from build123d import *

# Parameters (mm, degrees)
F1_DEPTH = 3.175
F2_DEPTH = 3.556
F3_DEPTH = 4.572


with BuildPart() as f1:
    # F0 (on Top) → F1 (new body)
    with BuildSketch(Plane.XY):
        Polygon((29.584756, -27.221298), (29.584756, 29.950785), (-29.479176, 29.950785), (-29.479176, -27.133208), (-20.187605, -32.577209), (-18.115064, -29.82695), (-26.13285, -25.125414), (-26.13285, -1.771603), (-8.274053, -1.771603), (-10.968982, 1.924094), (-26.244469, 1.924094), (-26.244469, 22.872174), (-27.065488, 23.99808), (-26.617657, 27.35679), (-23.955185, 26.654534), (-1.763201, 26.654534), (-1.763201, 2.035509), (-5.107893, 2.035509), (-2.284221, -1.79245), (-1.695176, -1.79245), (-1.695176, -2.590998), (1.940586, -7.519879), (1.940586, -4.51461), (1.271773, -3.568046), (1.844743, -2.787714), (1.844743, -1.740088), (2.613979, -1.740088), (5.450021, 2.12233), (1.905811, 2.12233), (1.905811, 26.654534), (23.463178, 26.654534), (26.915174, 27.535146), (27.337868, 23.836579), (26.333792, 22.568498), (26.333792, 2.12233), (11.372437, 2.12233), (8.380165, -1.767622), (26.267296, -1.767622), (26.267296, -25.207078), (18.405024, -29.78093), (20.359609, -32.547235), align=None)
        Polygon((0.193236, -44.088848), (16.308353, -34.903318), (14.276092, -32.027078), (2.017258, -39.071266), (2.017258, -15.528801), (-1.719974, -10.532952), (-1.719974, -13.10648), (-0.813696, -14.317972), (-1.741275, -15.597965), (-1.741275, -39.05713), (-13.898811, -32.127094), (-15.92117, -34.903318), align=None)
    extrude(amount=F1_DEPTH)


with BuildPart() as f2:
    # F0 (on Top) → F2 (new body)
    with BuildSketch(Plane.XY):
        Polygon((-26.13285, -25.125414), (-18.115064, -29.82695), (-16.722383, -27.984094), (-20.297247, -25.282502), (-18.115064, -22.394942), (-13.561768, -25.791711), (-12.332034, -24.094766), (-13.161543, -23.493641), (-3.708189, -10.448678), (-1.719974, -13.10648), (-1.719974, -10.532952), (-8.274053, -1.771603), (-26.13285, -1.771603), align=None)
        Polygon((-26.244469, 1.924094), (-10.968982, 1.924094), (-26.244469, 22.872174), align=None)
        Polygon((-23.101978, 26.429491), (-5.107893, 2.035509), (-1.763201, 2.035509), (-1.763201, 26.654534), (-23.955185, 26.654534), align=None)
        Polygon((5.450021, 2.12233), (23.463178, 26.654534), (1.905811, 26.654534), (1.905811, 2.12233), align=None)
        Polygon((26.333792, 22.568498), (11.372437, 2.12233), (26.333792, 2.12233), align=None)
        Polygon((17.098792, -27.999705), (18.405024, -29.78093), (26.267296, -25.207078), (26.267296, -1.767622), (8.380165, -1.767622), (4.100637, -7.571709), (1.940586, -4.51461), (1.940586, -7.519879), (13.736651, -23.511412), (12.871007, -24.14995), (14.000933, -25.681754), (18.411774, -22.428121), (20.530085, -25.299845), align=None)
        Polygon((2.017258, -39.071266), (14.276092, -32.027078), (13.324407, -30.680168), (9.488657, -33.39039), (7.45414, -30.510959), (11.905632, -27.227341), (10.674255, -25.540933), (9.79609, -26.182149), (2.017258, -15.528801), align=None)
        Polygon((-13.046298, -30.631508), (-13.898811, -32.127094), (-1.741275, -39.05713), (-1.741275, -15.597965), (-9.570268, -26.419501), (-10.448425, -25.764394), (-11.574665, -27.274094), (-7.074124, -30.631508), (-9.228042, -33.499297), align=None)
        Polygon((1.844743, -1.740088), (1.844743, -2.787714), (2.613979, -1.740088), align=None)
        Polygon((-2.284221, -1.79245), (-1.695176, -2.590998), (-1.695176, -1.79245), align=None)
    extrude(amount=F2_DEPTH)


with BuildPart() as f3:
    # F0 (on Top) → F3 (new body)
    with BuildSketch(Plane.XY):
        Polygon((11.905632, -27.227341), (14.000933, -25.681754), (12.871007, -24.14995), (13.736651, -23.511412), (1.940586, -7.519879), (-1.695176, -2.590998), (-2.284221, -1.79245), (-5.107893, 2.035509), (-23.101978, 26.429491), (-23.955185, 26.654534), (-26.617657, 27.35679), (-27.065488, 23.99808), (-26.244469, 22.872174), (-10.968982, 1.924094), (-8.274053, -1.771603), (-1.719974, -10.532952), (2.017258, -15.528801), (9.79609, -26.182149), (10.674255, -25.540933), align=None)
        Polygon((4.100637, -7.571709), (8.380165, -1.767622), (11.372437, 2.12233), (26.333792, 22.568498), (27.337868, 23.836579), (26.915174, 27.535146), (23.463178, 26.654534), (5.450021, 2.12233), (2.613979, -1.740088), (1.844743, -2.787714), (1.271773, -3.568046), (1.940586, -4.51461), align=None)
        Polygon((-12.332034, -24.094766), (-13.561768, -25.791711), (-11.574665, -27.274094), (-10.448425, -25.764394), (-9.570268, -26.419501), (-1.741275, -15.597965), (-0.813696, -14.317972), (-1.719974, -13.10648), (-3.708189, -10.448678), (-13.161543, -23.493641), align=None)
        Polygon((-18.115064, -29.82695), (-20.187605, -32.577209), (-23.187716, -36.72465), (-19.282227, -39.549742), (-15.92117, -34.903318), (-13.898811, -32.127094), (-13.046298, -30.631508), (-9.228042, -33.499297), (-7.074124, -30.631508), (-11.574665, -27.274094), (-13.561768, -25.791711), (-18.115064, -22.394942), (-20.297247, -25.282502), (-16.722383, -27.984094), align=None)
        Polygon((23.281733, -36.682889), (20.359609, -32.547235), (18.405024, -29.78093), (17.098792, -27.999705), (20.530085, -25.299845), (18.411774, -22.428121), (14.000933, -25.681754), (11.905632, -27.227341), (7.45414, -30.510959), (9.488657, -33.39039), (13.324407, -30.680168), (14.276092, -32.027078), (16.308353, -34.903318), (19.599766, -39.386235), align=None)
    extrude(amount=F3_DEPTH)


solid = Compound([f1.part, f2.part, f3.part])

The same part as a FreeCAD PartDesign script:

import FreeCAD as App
import Part
import Sketcher

V = App.Vector
Q = App.Units.Quantity


def add_polygon(sketch, points):
    """Adds a closed chain of lines whose ends are joined by coincident constraints."""
    first, n = sketch.GeometryCount, len(points)
    for a, b in zip(points, points[1:] + points[:1]):
        sketch.addGeometry(Part.LineSegment(App.Vector(*a, 0), App.Vector(*b, 0)), False)
    for i in range(n):
        sketch.addConstraint(Sketcher.Constraint("Coincident", first + i, 2, first + (i + 1) % n, 1))

doc = App.newDocument("Part")
params = doc.addObject("Spreadsheet::Sheet", "Params")
for row, (alias, value) in enumerate([
    ("pad1_length", "0.125 in"),
    ("pad2_length", "0.14 in"),
    ("pad3_length", "0.18 in"),
], start=1):
    params.set(f"A{row}", alias)
    params.set(f"B{row}", "=" + value)
    params.setAlias(f"B{row}", alias)

body = doc.addObject("PartDesign::Body", "Body")
body.AllowCompound = True

sketch1 = doc.addObject("Sketcher::SketchObject", "Sketch")
body.addObject(sketch1)
sketch1.AttachmentSupport = (doc.XY_Plane, [""])
sketch1.MapMode = "FlatFace"
add_polygon(sketch1, [(29.6, -27.2), (29.6, 30), (-29.5, 30), (-29.5, -27.1), (-20.2, -32.6), (-18.1, -29.8), (-26.1, -25.1), (-26.1, -1.8), (-8.3, -1.8), (-11, 1.9), (-26.2, 1.9), (-26.2, 22.9), (-27.1, 24), (-26.6, 27.4), (-24, 26.7), (-1.8, 26.7), (-1.8, 2), (-5.1, 2), (-2.3, -1.8), (-1.7, -1.8), (-1.7, -2.6), (1.9, -7.5), (1.9, -4.5), (1.3, -3.6), (1.8, -2.8), (1.8, -1.7), (2.6, -1.7), (5.5, 2.1), (1.9, 2.1), (1.9, 26.7), (23.5, 26.7), (26.9, 27.5), (27.3, 23.8), (26.3, 22.6), (26.3, 2.1), (11.4, 2.1), (8.4, -1.8), (26.3, -1.8), (26.3, -25.2), (18.4, -29.8), (20.4, -32.5)])
add_polygon(sketch1, [(0.2, -44.1), (16.3, -34.9), (14.3, -32), (2, -39.1), (2, -15.5), (-1.7, -10.5), (-1.7, -13.1), (-0.8, -14.3), (-1.7, -15.6), (-1.7, -39.1), (-13.9, -32.1), (-15.9, -34.9)])
sketch1.addConstraint([
    Sketcher.Constraint("Vertical", 0),
    Sketcher.Constraint("Horizontal", 1),
    Sketcher.Constraint("Vertical", 2),
    Sketcher.Constraint("Vertical", 6),
    Sketcher.Constraint("Horizontal", 7),
    Sketcher.Constraint("Horizontal", 9),
    Sketcher.Constraint("Vertical", 10),
    Sketcher.Constraint("Horizontal", 14),
    Sketcher.Constraint("Vertical", 15),
    Sketcher.Constraint("Horizontal", 16),
    Sketcher.Constraint("Horizontal", 18),
    Sketcher.Constraint("Vertical", 19),
    Sketcher.Constraint("Vertical", 21),
    Sketcher.Constraint("Vertical", 24),
    Sketcher.Constraint("Horizontal", 25),
    Sketcher.Constraint("Horizontal", 27),
    Sketcher.Constraint("Vertical", 28),
    Sketcher.Constraint("Horizontal", 29),
    Sketcher.Constraint("Vertical", 33),
    Sketcher.Constraint("Horizontal", 34),
    Sketcher.Constraint("Horizontal", 36),
    Sketcher.Constraint("Vertical", 37),
    Sketcher.Constraint("Vertical", 44),
    Sketcher.Constraint("Vertical", 46),
    Sketcher.Constraint("Vertical", 49),
    Sketcher.Constraint("Parallel", 8, 11),
    Sketcher.Constraint("Parallel", 17, 20),
    Sketcher.Constraint("Parallel", 23, 26),
    Sketcher.Constraint("Parallel", 22, 39),
    Sketcher.Constraint("Parallel", 39, 42),
    Sketcher.Constraint("Parallel", 45, 47),
    Sketcher.Constraint("Parallel", 50, 52),
    Sketcher.Constraint("Horizontal", 14, 2, 28, 2),
    Sketcher.Constraint("Horizontal", 27, 2, 33, 2),
    Sketcher.Constraint("Horizontal", 41, 2, 51, 2),
    Sketcher.Constraint("DistanceX", 14, 1, 14, 2, Q("0.8737002 in")),
    Sketcher.Constraint("DistanceY", 4, 2, 5, 2, Q("0.1850998 in")),
    Sketcher.Constraint("DistanceY", 7, 2, 8, 2, Q("0.1454999 in")),
    Sketcher.Constraint("DistanceX", 24, 2, 35, 2, Q("0.2573001 in")),
    Sketcher.Constraint("DistanceY", 40, 2, 37, 2, Q("0.0793 in")),
    Sketcher.Constraint("DistanceX", 2, 2, 50, 2, Q("0.6134002 in")),
    Sketcher.Constraint("DistanceY", 51, 2, 50, 2, Q("0.1093002 in")),
    Sketcher.Constraint("DistanceX", 1, 2, 1, 1, Q("59.063932 mm")),
    Sketcher.Constraint("DistanceX", 16, 2, 16, 1, Q("3.344692 mm")),
    Sketcher.Constraint("DistanceX", 27, 2, 27, 1, Q("3.54421 mm")),
    Sketcher.Constraint("DistanceX", 36, 1, 36, 2, Q("17.887131 mm")),
    Sketcher.Constraint("DistanceY", 6, 1, 6, 2, Q("23.353811 mm")),
    Sketcher.Constraint("DistanceY", 10, 1, 10, 2, Q("20.94808 mm")),
    Sketcher.Constraint("DistanceY", 21, 1, 21, 2, Q("3.005269 mm")),
    Sketcher.Constraint("DistanceY", 33, 2, 33, 1, Q("20.446168 mm")),
    Sketcher.Constraint("DistanceX", 14, 2, -1, 1, Q("1.763201 mm")),
    Sketcher.Constraint("DistanceY", -1, 1, 32, 2, Q("22.568498 mm")),
    Sketcher.Constraint("DistanceY", 40, 2, -1, 1, Q("27.221298 mm")),
    Sketcher.Constraint("DistanceY", 44, 2, -1, 1, Q("15.528801 mm")),
    Sketcher.Constraint("DistanceY", 3, 2, 2, 2, Q("5.444001 mm")),
    Sketcher.Constraint("DistanceY", 5, 2, 1, 2, Q("55.076199 mm")),
    Sketcher.Constraint("DistanceY", 37, 2, 20, 2, Q("17.687199 mm")),
    Sketcher.Constraint("DistanceY", 42, 2, 37, 2, Q("6.82 mm")),
    Sketcher.Constraint("DistanceY", 46, 2, 20, 2, Q("5.586601 mm")),
    Sketcher.Constraint("DistanceX", 48, 2, 46, 2, Q("0.021301 mm")),
    Sketcher.Constraint("Distance", 4, Q("3.443741 mm")),
    Sketcher.Constraint("Distance", 8, Q("4.573928 mm")),
    Sketcher.Constraint("Distance", 13, Q("2.753529 mm")),
    Sketcher.Constraint("Distance", 17, Q("4.756721 mm")),
    Sketcher.Constraint("Distance", 30, Q("3.562549 mm")),
    Sketcher.Constraint("Distance", 35, Q("4.90769 mm")),
    Sketcher.Constraint("Distance", 39, Q("3.387159 mm")),
    Sketcher.Constraint("Distance", 40, Q("10.65218 mm")),
    Sketcher.Constraint("Distance", 41, Q("18.54915 mm")),
    Sketcher.Constraint("Distance", 47, Q("1.512962 mm")),
    Sketcher.Constraint("DistanceX", 7, 1, 7, 2, Q("17.858797 mm")),
    Sketcher.Constraint("DistanceX", 9, 2, 9, 1, Q("15.275487 mm")),
    Sketcher.Constraint("DistanceX", 18, 1, 18, 2, Q("0.589045 mm")),
    Sketcher.Constraint("DistanceX", 25, 1, 25, 2, Q("0.769236 mm")),
    Sketcher.Constraint("DistanceX", 29, 1, 29, 2, Q("21.557367 mm")),
    Sketcher.Constraint("DistanceX", 34, 2, 34, 1, Q("14.961355 mm")),
    Sketcher.Constraint("DistanceY", 0, 1, 0, 2, Q("57.172083 mm")),
    Sketcher.Constraint("DistanceY", 2, 2, 2, 1, Q("57.083993 mm")),
    Sketcher.Constraint("DistanceY", 15, 2, 15, 1, Q("24.619025 mm")),
    Sketcher.Constraint("DistanceY", 19, 2, 19, 1, Q("0.798548 mm")),
    Sketcher.Constraint("DistanceY", 24, 1, 24, 2, Q("1.047626 mm")),
    Sketcher.Constraint("DistanceY", 28, 1, 28, 2, Q("24.532204 mm")),
    Sketcher.Constraint("DistanceY", 37, 2, 37, 1, Q("23.439456 mm")),
    Sketcher.Constraint("DistanceY", 44, 1, 44, 2, Q("23.542465 mm")),
    Sketcher.Constraint("DistanceY", 46, 2, 46, 1, Q("2.573528 mm")),
    Sketcher.Constraint("DistanceY", 49, 2, 49, 1, Q("23.459165 mm")),
    Sketcher.Constraint("DistanceX", 5, 2, -1, 1, Q("26.13285 mm")),
    Sketcher.Constraint("DistanceY", -1, 1, 11, 2, Q("23.99808 mm")),
    Sketcher.Constraint("DistanceY", -1, 1, 12, 2, Q("27.35679 mm")),
    Sketcher.Constraint("DistanceX", 17, 2, -1, 1, Q("2.284221 mm")),
    Sketcher.Constraint("DistanceY", 24, 2, -1, 1, Q("1.740088 mm")),
    Sketcher.Constraint("DistanceX", -1, 1, 25, 2, Q("2.613979 mm")),
    Sketcher.Constraint("DistanceX", -1, 1, 26, 2, Q("5.450021 mm")),
    Sketcher.Constraint("DistanceX", -1, 1, 31, 2, Q("27.337868 mm")),
    Sketcher.Constraint("DistanceY", -1, 1, 31, 2, Q("23.836579 mm")),
    Sketcher.Constraint("DistanceY", 38, 2, -1, 1, Q("29.78093 mm")),
    Sketcher.Constraint("DistanceX", -1, 1, 39, 2, Q("20.359609 mm")),
    Sketcher.Constraint("DistanceX", -1, 1, 43, 2, Q("2.017258 mm")),
    Sketcher.Constraint("DistanceY", 47, 2, -1, 1, Q("14.317972 mm")),
    Sketcher.Constraint("DistanceY", 49, 2, -1, 1, Q("39.05713 mm")),
    Sketcher.Constraint("DistanceX", 50, 2, -1, 1, Q("13.898811 mm")),
    Sketcher.Constraint("DistanceX", 51, 2, -1, 1, Q("15.92117 mm")),
    Sketcher.Constraint("DistanceX", 2, 2, 3, 2, Q("9.291571 mm")),
    Sketcher.Constraint("DistanceY", 29, 2, 30, 2, Q("0.880612 mm")),
    Sketcher.Constraint("DistanceX", 41, 2, 38, 2, Q("2.096671 mm")),
    Sketcher.Constraint("DistanceY", 41, 2, 37, 2, Q("9.69624 mm")),
])
pad1 = doc.addObject("PartDesign::Pad", "Pad")
body.addObject(pad1)
pad1.Profile = sketch1
pad1.setExpression("Length", "Params.pad1_length")
body2 = doc.addObject("PartDesign::Body", "Body001")
body2.AllowCompound = True

sketch2 = doc.addObject("Sketcher::SketchObject", "Sketch001")
body2.addObject(sketch2)
sketch2.AttachmentSupport = (doc.getObject("XY_Plane001"), [""])
sketch2.MapMode = "FlatFace"
add_polygon(sketch2, [(-26.13285, -25.125414), (-18.115064, -29.82695), (-16.722383, -27.984094), (-20.297247, -25.282502), (-18.115064, -22.394942), (-13.561768, -25.791711), (-12.332034, -24.094766), (-13.161543, -23.493641), (-3.708189, -10.448678), (-1.719974, -13.10648), (-1.719974, -10.532952), (-8.274053, -1.771603), (-26.13285, -1.771603)])
add_polygon(sketch2, [(-26.244469, 1.924094), (-10.968982, 1.924094), (-26.244469, 22.872174)])
add_polygon(sketch2, [(-23.101978, 26.429491), (-5.107893, 2.035509), (-1.763201, 2.035509), (-1.763201, 26.654534), (-23.955185, 26.654534)])
add_polygon(sketch2, [(5.450021, 2.12233), (23.463178, 26.654534), (1.905811, 26.654534), (1.905811, 2.12233)])
add_polygon(sketch2, [(26.333792, 22.568498), (11.372437, 2.12233), (26.333792, 2.12233)])
add_polygon(sketch2, [(17.098792, -27.999705), (18.405024, -29.78093), (26.267296, -25.207078), (26.267296, -1.767622), (8.380165, -1.767622), (4.100637, -7.571709), (1.940586, -4.51461), (1.940586, -7.519879), (13.736651, -23.511412), (12.871007, -24.14995), (14.000933, -25.681754), (18.411774, -22.428121), (20.530085, -25.299845)])
add_polygon(sketch2, [(2.017258, -39.071266), (14.276092, -32.027078), (13.324407, -30.680168), (9.488657, -33.39039), (7.45414, -30.510959), (11.905632, -27.227341), (10.674255, -25.540933), (9.79609, -26.182149), (2.017258, -15.528801)])
add_polygon(sketch2, [(-13.046298, -30.631508), (-13.898811, -32.127094), (-1.741275, -39.05713), (-1.741275, -15.597965), (-9.570268, -26.419501), (-10.448425, -25.764394), (-11.574665, -27.274094), (-7.074124, -30.631508), (-9.228042, -33.499297)])
add_polygon(sketch2, [(1.844743, -1.740088), (1.844743, -2.787714), (2.613979, -1.740088)])
add_polygon(sketch2, [(-2.284221, -1.79245), (-1.695176, -2.590998), (-1.695176, -1.79245)])
sketch2.addConstraint([
    Sketcher.Constraint("Vertical", 9),
    Sketcher.Constraint("Horizontal", 11),
    Sketcher.Constraint("Vertical", 12),
    Sketcher.Constraint("Horizontal", 13),
    Sketcher.Constraint("Vertical", 15),
    Sketcher.Constraint("Horizontal", 17),
    Sketcher.Constraint("Vertical", 18),
    Sketcher.Constraint("Horizontal", 19),
    Sketcher.Constraint("Horizontal", 22),
    Sketcher.Constraint("Vertical", 23),
    Sketcher.Constraint("Horizontal", 24),
    Sketcher.Constraint("Horizontal", 26),
    Sketcher.Constraint("Vertical", 27),
    Sketcher.Constraint("Vertical", 30),
    Sketcher.Constraint("Horizontal", 31),
    Sketcher.Constraint("Vertical", 34),
    Sketcher.Constraint("Vertical", 49),
    Sketcher.Constraint("Vertical", 52),
    Sketcher.Constraint("Vertical", 59),
    Sketcher.Constraint("Horizontal", 61),
    Sketcher.Constraint("Vertical", 63),
    Sketcher.Constraint("Horizontal", 64),
    Sketcher.Constraint("DistanceX", 19, 2, 19, 1, Q("0.8737002 in")),
    Sketcher.Constraint("Distance", 14, Q("25.926098 mm")),
    Sketcher.Constraint("Distance", 50, Q("1.721498 mm")),
    Sketcher.Constraint("Distance", 53, Q("13.3566 mm")),
    Sketcher.Constraint("Distance", 56, Q("5.6149 mm")),
    Sketcher.Constraint("DistanceX", 17, 1, 17, 2, Q("3.344692 mm")),
    Sketcher.Constraint("DistanceX", 24, 1, 24, 2, Q("3.54421 mm")),
    Sketcher.Constraint("DistanceX", 31, 2, 31, 1, Q("17.887131 mm")),
    Sketcher.Constraint("DistanceY", 12, 2, 12, 1, Q("23.353811 mm")),
    Sketcher.Constraint("DistanceY", 15, 2, 15, 1, Q("20.94808 mm")),
    Sketcher.Constraint("DistanceY", 27, 1, 27, 2, Q("20.446168 mm")),
    Sketcher.Constraint("DistanceY", 34, 2, 34, 1, Q("3.005269 mm")),
    Sketcher.Constraint("DistanceX", 17, 2, -1, 1, Q("1.763201 mm")),
    Sketcher.Constraint("DistanceY", -1, 1, 27, 2, Q("22.568498 mm")),
    Sketcher.Constraint("DistanceY", 48, 2, -1, 1, Q("15.528801 mm")),
    Sketcher.Constraint("DistanceY", 53, 2, -1, 1, Q("26.419501 mm")),
    Sketcher.Constraint("Distance", 1, Q("2.309909 mm")),
    Sketcher.Constraint("Distance", 3, Q("3.619382 mm")),
    Sketcher.Constraint("Distance", 5, Q("2.095678 mm")),
    Sketcher.Constraint("Distance", 6, Q("1.02442 mm")),
    Sketcher.Constraint("Distance", 7, Q("16.110151 mm")),
    Sketcher.Constraint("Distance", 37, Q("1.903459 mm")),
    Sketcher.Constraint("Distance", 39, Q("3.568479 mm")),
    Sketcher.Constraint("Distance", 40, Q("4.366121 mm")),
    Sketcher.Constraint("Distance", 45, Q("5.531539 mm")),
    Sketcher.Constraint("Distance", 47, Q("1.087351 mm")),
    Sketcher.Constraint("Distance", 48, Q("13.19106 mm")),
    Sketcher.Constraint("Distance", 55, Q("1.88351 mm")),
    Sketcher.Constraint("Distance", 58, Q("4.775279 mm")),
    Sketcher.Constraint("Distance", 60, Q("1.299709 mm")),
    Sketcher.Constraint("DistanceX", 11, 2, 11, 1, Q("17.858797 mm")),
    Sketcher.Constraint("DistanceX", 22, 2, 22, 1, Q("21.557367 mm")),
    Sketcher.Constraint("DistanceX", 26, 1, 26, 2, Q("14.961355 mm")),
    Sketcher.Constraint("DistanceX", 61, 2, 61, 1, Q("0.769236 mm")),
    Sketcher.Constraint("DistanceX", 64, 2, 64, 1, Q("0.589045 mm")),
    Sketcher.Constraint("DistanceY", 9, 1, 9, 2, Q("2.573528 mm")),
    Sketcher.Constraint("DistanceY", 18, 1, 18, 2, Q("24.619025 mm")),
    Sketcher.Constraint("DistanceY", 23, 2, 23, 1, Q("24.532204 mm")),
    Sketcher.Constraint("DistanceY", 30, 1, 30, 2, Q("23.439456 mm")),
    Sketcher.Constraint("DistanceY", 49, 2, 49, 1, Q("23.542465 mm")),
    Sketcher.Constraint("DistanceY", 52, 1, 52, 2, Q("23.459165 mm")),
    Sketcher.Constraint("DistanceY", 63, 1, 63, 2, Q("0.798548 mm")),
    Sketcher.Constraint("DistanceY", 0, 2, -1, 1, Q("29.82695 mm")),
    Sketcher.Constraint("DistanceX", 4, 2, -1, 1, Q("13.561768 mm")),
    Sketcher.Constraint("DistanceY", 4, 2, -1, 1, Q("25.791711 mm")),
    Sketcher.Constraint("DistanceY", 6, 2, -1, 1, Q("23.493641 mm")),
    Sketcher.Constraint("DistanceX", 7, 2, -1, 1, Q("3.708189 mm")),
    Sketcher.Constraint("DistanceY", 8, 2, -1, 1, Q("13.10648 mm")),
    Sketcher.Constraint("DistanceX", 11, 2, -1, 1, Q("26.13285 mm")),
    Sketcher.Constraint("DistanceX", 14, 2, -1, 1, Q("26.244469 mm")),
    Sketcher.Constraint("DistanceY", -1, 1, 16, 2, Q("2.035509 mm")),
    Sketcher.Constraint("DistanceY", -1, 1, 20, 2, Q("26.429491 mm")),
    Sketcher.Constraint("DistanceX", -1, 1, 22, 2, Q("1.905811 mm")),
    Sketcher.Constraint("DistanceY", -1, 1, 23, 2, Q("2.12233 mm")),
    Sketcher.Constraint("DistanceX", -1, 1, 26, 2, Q("26.333792 mm")),
    Sketcher.Constraint("DistanceY", 28, 2, -1, 1, Q("29.78093 mm")),
    Sketcher.Constraint("DistanceY", 32, 2, -1, 1, Q("7.571709 mm")),
    Sketcher.Constraint("DistanceY", 33, 2, -1, 1, Q("4.51461 mm")),
    Sketcher.Constraint("DistanceX", -1, 1, 35, 2, Q("13.736651 mm")),
    Sketcher.Constraint("DistanceY", 35, 2, -1, 1, Q("23.511412 mm")),
    Sketcher.Constraint("DistanceY", 36, 2, -1, 1, Q("24.14995 mm")),
    Sketcher.Constraint("DistanceY", 38, 2, -1, 1, Q("22.428121 mm")),
    Sketcher.Constraint("DistanceX", -1, 1, 40, 2, Q("17.098792 mm")),
    Sketcher.Constraint("DistanceY", 41, 2, -1, 1, Q("32.027078 mm")),
    Sketcher.Constraint("DistanceY", 43, 2, -1, 1, Q("33.39039 mm")),
    Sketcher.Constraint("DistanceX", -1, 1, 44, 2, Q("7.45414 mm")),
    Sketcher.Constraint("DistanceY", 44, 2, -1, 1, Q("30.510959 mm")),
    Sketcher.Constraint("DistanceY", 45, 2, -1, 1, Q("27.227341 mm")),
    Sketcher.Constraint("DistanceX", -1, 1, 47, 2, Q("9.79609 mm")),
    Sketcher.Constraint("DistanceY", 47, 2, -1, 1, Q("26.182149 mm")),
    Sketcher.Constraint("DistanceX", 50, 2, -1, 1, Q("13.898811 mm")),
    Sketcher.Constraint("DistanceY", 51, 2, -1, 1, Q("39.05713 mm")),
    Sketcher.Constraint("DistanceY", 56, 2, -1, 1, Q("30.631508 mm")),
    Sketcher.Constraint("DistanceY", 58, 2, -1, 1, Q("30.631508 mm")),
    Sketcher.Constraint("DistanceX", -1, 1, 60, 2, Q("2.613979 mm")),
    Sketcher.Constraint("DistanceY", 60, 2, -1, 1, Q("1.740088 mm")),
    Sketcher.Constraint("DistanceY", 63, 2, -1, 1, Q("1.79245 mm")),
    Sketcher.Constraint("DistanceX", 64, 2, -1, 1, Q("2.284221 mm")),
    Sketcher.Constraint("Distance", 0, Q("9.294586 mm")),
    Sketcher.Constraint("Distance", 2, Q("4.480876 mm")),
    Sketcher.Constraint("Distance", 4, Q("5.680717 mm")),
    Sketcher.Constraint("Distance", 8, Q("3.319173 mm")),
    Sketcher.Constraint("Distance", 10, Q("10.941535 mm")),
    Sketcher.Constraint("Distance", 16, Q("30.312596 mm")),
    Sketcher.Constraint("Distance", 28, Q("2.208847 mm")),
    Sketcher.Constraint("Distance", 29, Q("9.095903 mm")),
    Sketcher.Constraint("Distance", 32, Q("7.211226 mm")),
    Sketcher.Constraint("Distance", 33, Q("3.743217 mm")),
    Sketcher.Constraint("Distance", 35, Q("19.871494 mm")),
    Sketcher.Constraint("Distance", 36, Q("1.075672 mm")),
    Sketcher.Constraint("Distance", 38, Q("5.481026 mm")),
    Sketcher.Constraint("Distance", 41, Q("14.138585 mm")),
    Sketcher.Constraint("Distance", 42, Q("1.649203 mm")),
    Sketcher.Constraint("Distance", 43, Q("4.696624 mm")),
    Sketcher.Constraint("Distance", 44, Q("3.525675 mm")),
    Sketcher.Constraint("Distance", 46, Q("2.088124 mm")),
    Sketcher.Constraint("Distance", 51, Q("13.993966 mm")),
    Sketcher.Constraint("Distance", 54, Q("1.095593 mm")),
    Sketcher.Constraint("Distance", 57, Q("3.586583 mm")),
    Sketcher.Constraint("DistanceX", 0, 2, -1, 1, Q("18.115064 mm")),
    Sketcher.Constraint("DistanceX", 1, 2, -1, 1, Q("16.722383 mm")),
    Sketcher.Constraint("DistanceX", 2, 2, -1, 1, Q("20.297247 mm")),
    Sketcher.Constraint("DistanceY", -1, 1, 13, 2, Q("1.924094 mm")),
    Sketcher.Constraint("DistanceX", -1, 1, 28, 2, Q("18.405024 mm")),
    Sketcher.Constraint("DistanceX", -1, 1, 37, 2, Q("14.000933 mm")),
    Sketcher.Constraint("DistanceY", 50, 2, -1, 1, Q("32.127094 mm")),
    Sketcher.Constraint("DistanceX", 54, 2, -1, 1, Q("10.448425 mm")),
    Sketcher.Constraint("DistanceX", 55, 2, -1, 1, Q("11.574665 mm")),
])
pad2 = doc.addObject("PartDesign::Pad", "Pad001")
body2.addObject(pad2)
pad2.Profile = sketch2
pad2.setExpression("Length", "Params.pad2_length")
body3 = doc.addObject("PartDesign::Body", "Body002")
body3.AllowCompound = True

sketch3 = doc.addObject("Sketcher::SketchObject", "Sketch002")
body3.addObject(sketch3)
sketch3.AttachmentSupport = (doc.getObject("XY_Plane002"), [""])
sketch3.MapMode = "FlatFace"
add_polygon(sketch3, [(14, -25.7), (12.9, -24.1), (13.7, -23.5), (1.9, -7.5), (-1.7, -2.6), (-2.3, -1.8), (-5.1, 2), (-23.1, 26.4), (-24, 26.7), (-26.6, 27.4), (-27.1, 24), (-26.2, 22.9), (-11, 1.9), (-8.3, -1.8), (-1.7, -10.5), (2, -15.5), (9.8, -26.2), (10.7, -25.5), (11.9, -27.2), (7.5, -30.5), (9.5, -33.4), (13.3, -30.7), (14.3, -32), (16.3, -34.9), (19.6, -39.4), (23.3, -36.7), (20.4, -32.5), (18.4, -29.8), (17.1, -28), (20.5, -25.3), (18.4, -22.4)])
add_polygon(sketch3, [(4.1, -7.6), (8.4, -1.8), (11.4, 2.1), (26.3, 22.6), (27.3, 23.8), (26.9, 27.5), (23.5, 26.7), (5.5, 2.1), (2.6, -1.7), (1.8, -2.8), (1.3, -3.6), (1.9, -4.5)])
add_polygon(sketch3, [(-12.3, -24.1), (-13.6, -25.8), (-18.1, -22.4), (-20.3, -25.3), (-16.7, -28), (-18.1, -29.8), (-20.2, -32.6), (-23.2, -36.7), (-19.3, -39.5), (-15.9, -34.9), (-13.9, -32.1), (-13, -30.6), (-9.2, -33.5), (-7.1, -30.6), (-11.6, -27.3), (-10.4, -25.8), (-9.6, -26.4), (-1.7, -15.6), (-0.8, -14.3), (-1.7, -13.1), (-3.7, -10.4), (-13.2, -23.5)])
sketch3.addConstraint([
    Sketcher.Constraint("Perpendicular", 0, 1),
    Sketcher.Constraint("Perpendicular", 1, 2),
    Sketcher.Constraint("Parallel", 2, 3),
    Sketcher.Constraint("Parallel", 3, 4),
    Sketcher.Constraint("Parallel", 4, 5),
    Sketcher.Constraint("Parallel", 5, 6),
    Sketcher.Constraint("Parallel", 7, 8),
    Sketcher.Constraint("Parallel", 10, 11),
    Sketcher.Constraint("Parallel", 11, 12),
    Sketcher.Constraint("Parallel", 13, 14),
    Sketcher.Constraint("Perpendicular", 15, 16),
    Sketcher.Constraint("Perpendicular", 16, 17),
    Sketcher.Constraint("Perpendicular", 6, 18),
    Sketcher.Constraint("Perpendicular", 19, 20),
    Sketcher.Constraint("Perpendicular", 20, 21),
    Sketcher.Constraint("Parallel", 21, 22),
    Sketcher.Constraint("Perpendicular", 23, 24),
    Sketcher.Constraint("Parallel", 22, 25),
    Sketcher.Constraint("Parallel", 25, 26),
    Sketcher.Constraint("Perpendicular", 18, 29),
    Sketcher.Constraint("Perpendicular", 29, 30),
    Sketcher.Constraint("Parallel", 37, 38),
    Sketcher.Constraint("Parallel", 38, 39),
    Sketcher.Constraint("Parallel", 39, 40),
    Sketcher.Constraint("Parallel", 26, 41),
    Sketcher.Constraint("Parallel", 41, 42),
    Sketcher.Constraint("Perpendicular", 45, 46),
    Sketcher.Constraint("Perpendicular", 46, 47),
    Sketcher.Constraint("Perpendicular", 49, 50),
    Sketcher.Constraint("Perpendicular", 50, 51),
    Sketcher.Constraint("Perpendicular", 54, 55),
    Sketcher.Constraint("Parallel", 44, 56),
    Sketcher.Constraint("Perpendicular", 56, 57),
    Sketcher.Constraint("Perpendicular", 57, 58),
    Sketcher.Constraint("Parallel", 43, 60),
    Sketcher.Constraint("Parallel", 14, 61),
    Sketcher.Constraint("Parallel", 61, 62),
    Sketcher.Constraint("Parallel", 60, 63),
    Sketcher.Constraint("Perpendicular", 63, 64),
    Sketcher.Constraint("Horizontal", 7, 2, 36, 2),
    Sketcher.Constraint("Horizontal", 32, 2, 37, 2),
    Sketcher.Constraint("Horizontal", 22, 2, 51, 2),
    Sketcher.Constraint("Horizontal", 53, 2, 55, 2),
    Sketcher.Constraint("Vertical", 2, 2, 41, 2),
    Sketcher.Constraint("Vertical", 44, 2, 47, 2),
    Sketcher.Constraint("Vertical", 13, 2, 61, 2),
    Sketcher.Constraint("Distance", 11, Q("25.926098 mm")),
    Sketcher.Constraint("Distance", 53, Q("1.721498 mm")),
    Sketcher.Constraint("Distance", 56, Q("5.6149 mm")),
    Sketcher.Constraint("Distance", 59, Q("13.3566 mm")),
    Sketcher.Constraint("DistanceY", 14, 2, -1, 1, Q("15.528801 mm")),
    Sketcher.Constraint("DistanceY", -1, 1, 33, 2, Q("22.568498 mm")),
    Sketcher.Constraint("DistanceY", 58, 2, -1, 1, Q("26.419501 mm")),
    Sketcher.Constraint("Distance", 0, Q("1.903459 mm")),
    Sketcher.Constraint("Distance", 5, Q("4.756721 mm")),
    Sketcher.Constraint("Distance", 8, Q("2.753529 mm")),
    Sketcher.Constraint("Distance", 12, Q("4.573928 mm")),
    Sketcher.Constraint("Distance", 15, Q("13.19106 mm")),
    Sketcher.Constraint("Distance", 16, Q("1.087351 mm")),
    Sketcher.Constraint("Distance", 18, Q("5.531539 mm")),
    Sketcher.Constraint("Distance", 23, Q("5.56147 mm")),
    Sketcher.Constraint("Distance", 26, Q("3.387159 mm")),
    Sketcher.Constraint("Distance", 28, Q("4.366121 mm")),
    Sketcher.Constraint("Distance", 29, Q("3.568479 mm")),
    Sketcher.Constraint("Distance", 32, Q("4.90769 mm")),
    Sketcher.Constraint("Distance", 36, Q("3.562549 mm")),
    Sketcher.Constraint("Distance", 39, Q("1.299709 mm")),
    Sketcher.Constraint("Distance", 43, Q("2.095678 mm")),
    Sketcher.Constraint("Distance", 45, Q("3.619382 mm")),
    Sketcher.Constraint("Distance", 47, Q("2.309909 mm")),
    Sketcher.Constraint("Distance", 48, Q("3.443741 mm")),
    Sketcher.Constraint("Distance", 51, Q("5.734628 mm")),
    Sketcher.Constraint("Distance", 54, Q("4.775279 mm")),
    Sketcher.Constraint("Distance", 57, Q("1.88351 mm")),
    Sketcher.Constraint("Distance", 61, Q("1.512962 mm")),
    Sketcher.Constraint("Distance", 63, Q("16.110151 mm")),
    Sketcher.Constraint("Distance", 64, Q("1.02442 mm")),
    Sketcher.Constraint("DistanceY", 0, 2, -1, 1, Q("24.14995 mm")),
    Sketcher.Constraint("DistanceX", -1, 1, 1, 2, Q("13.736651 mm")),
    Sketcher.Constraint("DistanceY", 1, 2, -1, 1, Q("23.511412 mm")),
    Sketcher.Constraint("DistanceY", 2, 2, -1, 1, Q("7.519879 mm")),
    Sketcher.Constraint("DistanceX", 4, 2, -1, 1, Q("2.284221 mm")),
    Sketcher.Constraint("DistanceY", 4, 2, -1, 1, Q("1.79245 mm")),
    Sketcher.Constraint("DistanceY", -1, 1, 6, 2, Q("26.429491 mm")),
    Sketcher.Constraint("DistanceY", -1, 1, 8, 2, Q("27.35679 mm")),
    Sketcher.Constraint("DistanceY", -1, 1, 9, 2, Q("23.99808 mm")),
    Sketcher.Constraint("DistanceX", 10, 2, -1, 1, Q("26.244469 mm")),
    Sketcher.Constraint("DistanceX", -1, 1, 14, 2, Q("2.017258 mm")),
    Sketcher.Constraint("DistanceX", -1, 1, 15, 2, Q("9.79609 mm")),
    Sketcher.Constraint("DistanceY", 17, 2, -1, 1, Q("27.227341 mm")),
    Sketcher.Constraint("DistanceY", 19, 2, -1, 1, Q("33.39039 mm")),
    Sketcher.Constraint("DistanceY", 21, 2, -1, 1, Q("32.027078 mm")),
    Sketcher.Constraint("DistanceY", 24, 2, -1, 1, Q("36.682889 mm")),
    Sketcher.Constraint("DistanceX", -1, 1, 25, 2, Q("20.359609 mm")),
    Sketcher.Constraint("DistanceY", 26, 2, -1, 1, Q("29.78093 mm")),
    Sketcher.Constraint("DistanceX", -1, 1, 27, 2, Q("17.098792 mm")),
    Sketcher.Constraint("DistanceY", 29, 2, -1, 1, Q("22.428121 mm")),
    Sketcher.Constraint("DistanceY", -1, 1, 32, 2, Q("2.12233 mm")),
    Sketcher.Constraint("DistanceX", -1, 1, 33, 2, Q("26.333792 mm")),
    Sketcher.Constraint("DistanceX", -1, 1, 34, 2, Q("27.337868 mm")),
    Sketcher.Constraint("DistanceY", -1, 1, 34, 2, Q("23.836579 mm")),
    Sketcher.Constraint("DistanceX", -1, 1, 37, 2, Q("5.450021 mm")),
    Sketcher.Constraint("DistanceX", -1, 1, 38, 2, Q("2.613979 mm")),
    Sketcher.Constraint("DistanceY", 38, 2, -1, 1, Q("1.740088 mm")),
    Sketcher.Constraint("DistanceY", 41, 2, -1, 1, Q("4.51461 mm")),
    Sketcher.Constraint("DistanceY", 42, 2, -1, 1, Q("7.571709 mm")),
    Sketcher.Constraint("DistanceX", 43, 2, -1, 1, Q("13.561768 mm")),
    Sketcher.Constraint("DistanceY", 43, 2, -1, 1, Q("25.791711 mm")),
    Sketcher.Constraint("DistanceY", 47, 2, -1, 1, Q("29.82695 mm")),
    Sketcher.Constraint("DistanceY", 48, 2, -1, 1, Q("32.577209 mm")),
    Sketcher.Constraint("DistanceY", 49, 2, -1, 1, Q("36.72465 mm")),
    Sketcher.Constraint("DistanceX", 51, 2, -1, 1, Q("15.92117 mm")),
    Sketcher.Constraint("DistanceX", 52, 2, -1, 1, Q("13.898811 mm")),
    Sketcher.Constraint("DistanceY", 53, 2, -1, 1, Q("30.631508 mm")),
    Sketcher.Constraint("DistanceY", 60, 2, -1, 1, Q("14.317972 mm")),
    Sketcher.Constraint("DistanceY", 61, 2, -1, 1, Q("13.10648 mm")),
    Sketcher.Constraint("DistanceX", 62, 2, -1, 1, Q("3.708189 mm")),
    Sketcher.Constraint("Distance", 3, Q("6.124756 mm")),
    Sketcher.Constraint("Distance", 7, Q("0.882387 mm")),
    Sketcher.Constraint("Distance", 9, Q("3.388434 mm")),
    Sketcher.Constraint("Distance", 19, Q("3.525675 mm")),
    Sketcher.Constraint("Distance", 20, Q("4.696624 mm")),
    Sketcher.Constraint("Distance", 22, Q("3.521767 mm")),
    Sketcher.Constraint("Distance", 31, Q("7.211226 mm")),
    Sketcher.Constraint("Distance", 33, Q("25.335507 mm")),
    Sketcher.Constraint("Distance", 35, Q("3.722643 mm")),
    Sketcher.Constraint("Distance", 44, Q("5.680717 mm")),
    Sketcher.Constraint("Distance", 46, Q("4.480876 mm")),
    Sketcher.Constraint("Distance", 52, Q("3.434728 mm")),
    Sketcher.Constraint("Distance", 55, Q("3.586583 mm")),
])
pad3 = doc.addObject("PartDesign::Pad", "Pad002")
body3.addObject(pad3)
pad3.Profile = sketch3
pad3.setExpression("Length", "Params.pad3_length")

doc.recompute()
